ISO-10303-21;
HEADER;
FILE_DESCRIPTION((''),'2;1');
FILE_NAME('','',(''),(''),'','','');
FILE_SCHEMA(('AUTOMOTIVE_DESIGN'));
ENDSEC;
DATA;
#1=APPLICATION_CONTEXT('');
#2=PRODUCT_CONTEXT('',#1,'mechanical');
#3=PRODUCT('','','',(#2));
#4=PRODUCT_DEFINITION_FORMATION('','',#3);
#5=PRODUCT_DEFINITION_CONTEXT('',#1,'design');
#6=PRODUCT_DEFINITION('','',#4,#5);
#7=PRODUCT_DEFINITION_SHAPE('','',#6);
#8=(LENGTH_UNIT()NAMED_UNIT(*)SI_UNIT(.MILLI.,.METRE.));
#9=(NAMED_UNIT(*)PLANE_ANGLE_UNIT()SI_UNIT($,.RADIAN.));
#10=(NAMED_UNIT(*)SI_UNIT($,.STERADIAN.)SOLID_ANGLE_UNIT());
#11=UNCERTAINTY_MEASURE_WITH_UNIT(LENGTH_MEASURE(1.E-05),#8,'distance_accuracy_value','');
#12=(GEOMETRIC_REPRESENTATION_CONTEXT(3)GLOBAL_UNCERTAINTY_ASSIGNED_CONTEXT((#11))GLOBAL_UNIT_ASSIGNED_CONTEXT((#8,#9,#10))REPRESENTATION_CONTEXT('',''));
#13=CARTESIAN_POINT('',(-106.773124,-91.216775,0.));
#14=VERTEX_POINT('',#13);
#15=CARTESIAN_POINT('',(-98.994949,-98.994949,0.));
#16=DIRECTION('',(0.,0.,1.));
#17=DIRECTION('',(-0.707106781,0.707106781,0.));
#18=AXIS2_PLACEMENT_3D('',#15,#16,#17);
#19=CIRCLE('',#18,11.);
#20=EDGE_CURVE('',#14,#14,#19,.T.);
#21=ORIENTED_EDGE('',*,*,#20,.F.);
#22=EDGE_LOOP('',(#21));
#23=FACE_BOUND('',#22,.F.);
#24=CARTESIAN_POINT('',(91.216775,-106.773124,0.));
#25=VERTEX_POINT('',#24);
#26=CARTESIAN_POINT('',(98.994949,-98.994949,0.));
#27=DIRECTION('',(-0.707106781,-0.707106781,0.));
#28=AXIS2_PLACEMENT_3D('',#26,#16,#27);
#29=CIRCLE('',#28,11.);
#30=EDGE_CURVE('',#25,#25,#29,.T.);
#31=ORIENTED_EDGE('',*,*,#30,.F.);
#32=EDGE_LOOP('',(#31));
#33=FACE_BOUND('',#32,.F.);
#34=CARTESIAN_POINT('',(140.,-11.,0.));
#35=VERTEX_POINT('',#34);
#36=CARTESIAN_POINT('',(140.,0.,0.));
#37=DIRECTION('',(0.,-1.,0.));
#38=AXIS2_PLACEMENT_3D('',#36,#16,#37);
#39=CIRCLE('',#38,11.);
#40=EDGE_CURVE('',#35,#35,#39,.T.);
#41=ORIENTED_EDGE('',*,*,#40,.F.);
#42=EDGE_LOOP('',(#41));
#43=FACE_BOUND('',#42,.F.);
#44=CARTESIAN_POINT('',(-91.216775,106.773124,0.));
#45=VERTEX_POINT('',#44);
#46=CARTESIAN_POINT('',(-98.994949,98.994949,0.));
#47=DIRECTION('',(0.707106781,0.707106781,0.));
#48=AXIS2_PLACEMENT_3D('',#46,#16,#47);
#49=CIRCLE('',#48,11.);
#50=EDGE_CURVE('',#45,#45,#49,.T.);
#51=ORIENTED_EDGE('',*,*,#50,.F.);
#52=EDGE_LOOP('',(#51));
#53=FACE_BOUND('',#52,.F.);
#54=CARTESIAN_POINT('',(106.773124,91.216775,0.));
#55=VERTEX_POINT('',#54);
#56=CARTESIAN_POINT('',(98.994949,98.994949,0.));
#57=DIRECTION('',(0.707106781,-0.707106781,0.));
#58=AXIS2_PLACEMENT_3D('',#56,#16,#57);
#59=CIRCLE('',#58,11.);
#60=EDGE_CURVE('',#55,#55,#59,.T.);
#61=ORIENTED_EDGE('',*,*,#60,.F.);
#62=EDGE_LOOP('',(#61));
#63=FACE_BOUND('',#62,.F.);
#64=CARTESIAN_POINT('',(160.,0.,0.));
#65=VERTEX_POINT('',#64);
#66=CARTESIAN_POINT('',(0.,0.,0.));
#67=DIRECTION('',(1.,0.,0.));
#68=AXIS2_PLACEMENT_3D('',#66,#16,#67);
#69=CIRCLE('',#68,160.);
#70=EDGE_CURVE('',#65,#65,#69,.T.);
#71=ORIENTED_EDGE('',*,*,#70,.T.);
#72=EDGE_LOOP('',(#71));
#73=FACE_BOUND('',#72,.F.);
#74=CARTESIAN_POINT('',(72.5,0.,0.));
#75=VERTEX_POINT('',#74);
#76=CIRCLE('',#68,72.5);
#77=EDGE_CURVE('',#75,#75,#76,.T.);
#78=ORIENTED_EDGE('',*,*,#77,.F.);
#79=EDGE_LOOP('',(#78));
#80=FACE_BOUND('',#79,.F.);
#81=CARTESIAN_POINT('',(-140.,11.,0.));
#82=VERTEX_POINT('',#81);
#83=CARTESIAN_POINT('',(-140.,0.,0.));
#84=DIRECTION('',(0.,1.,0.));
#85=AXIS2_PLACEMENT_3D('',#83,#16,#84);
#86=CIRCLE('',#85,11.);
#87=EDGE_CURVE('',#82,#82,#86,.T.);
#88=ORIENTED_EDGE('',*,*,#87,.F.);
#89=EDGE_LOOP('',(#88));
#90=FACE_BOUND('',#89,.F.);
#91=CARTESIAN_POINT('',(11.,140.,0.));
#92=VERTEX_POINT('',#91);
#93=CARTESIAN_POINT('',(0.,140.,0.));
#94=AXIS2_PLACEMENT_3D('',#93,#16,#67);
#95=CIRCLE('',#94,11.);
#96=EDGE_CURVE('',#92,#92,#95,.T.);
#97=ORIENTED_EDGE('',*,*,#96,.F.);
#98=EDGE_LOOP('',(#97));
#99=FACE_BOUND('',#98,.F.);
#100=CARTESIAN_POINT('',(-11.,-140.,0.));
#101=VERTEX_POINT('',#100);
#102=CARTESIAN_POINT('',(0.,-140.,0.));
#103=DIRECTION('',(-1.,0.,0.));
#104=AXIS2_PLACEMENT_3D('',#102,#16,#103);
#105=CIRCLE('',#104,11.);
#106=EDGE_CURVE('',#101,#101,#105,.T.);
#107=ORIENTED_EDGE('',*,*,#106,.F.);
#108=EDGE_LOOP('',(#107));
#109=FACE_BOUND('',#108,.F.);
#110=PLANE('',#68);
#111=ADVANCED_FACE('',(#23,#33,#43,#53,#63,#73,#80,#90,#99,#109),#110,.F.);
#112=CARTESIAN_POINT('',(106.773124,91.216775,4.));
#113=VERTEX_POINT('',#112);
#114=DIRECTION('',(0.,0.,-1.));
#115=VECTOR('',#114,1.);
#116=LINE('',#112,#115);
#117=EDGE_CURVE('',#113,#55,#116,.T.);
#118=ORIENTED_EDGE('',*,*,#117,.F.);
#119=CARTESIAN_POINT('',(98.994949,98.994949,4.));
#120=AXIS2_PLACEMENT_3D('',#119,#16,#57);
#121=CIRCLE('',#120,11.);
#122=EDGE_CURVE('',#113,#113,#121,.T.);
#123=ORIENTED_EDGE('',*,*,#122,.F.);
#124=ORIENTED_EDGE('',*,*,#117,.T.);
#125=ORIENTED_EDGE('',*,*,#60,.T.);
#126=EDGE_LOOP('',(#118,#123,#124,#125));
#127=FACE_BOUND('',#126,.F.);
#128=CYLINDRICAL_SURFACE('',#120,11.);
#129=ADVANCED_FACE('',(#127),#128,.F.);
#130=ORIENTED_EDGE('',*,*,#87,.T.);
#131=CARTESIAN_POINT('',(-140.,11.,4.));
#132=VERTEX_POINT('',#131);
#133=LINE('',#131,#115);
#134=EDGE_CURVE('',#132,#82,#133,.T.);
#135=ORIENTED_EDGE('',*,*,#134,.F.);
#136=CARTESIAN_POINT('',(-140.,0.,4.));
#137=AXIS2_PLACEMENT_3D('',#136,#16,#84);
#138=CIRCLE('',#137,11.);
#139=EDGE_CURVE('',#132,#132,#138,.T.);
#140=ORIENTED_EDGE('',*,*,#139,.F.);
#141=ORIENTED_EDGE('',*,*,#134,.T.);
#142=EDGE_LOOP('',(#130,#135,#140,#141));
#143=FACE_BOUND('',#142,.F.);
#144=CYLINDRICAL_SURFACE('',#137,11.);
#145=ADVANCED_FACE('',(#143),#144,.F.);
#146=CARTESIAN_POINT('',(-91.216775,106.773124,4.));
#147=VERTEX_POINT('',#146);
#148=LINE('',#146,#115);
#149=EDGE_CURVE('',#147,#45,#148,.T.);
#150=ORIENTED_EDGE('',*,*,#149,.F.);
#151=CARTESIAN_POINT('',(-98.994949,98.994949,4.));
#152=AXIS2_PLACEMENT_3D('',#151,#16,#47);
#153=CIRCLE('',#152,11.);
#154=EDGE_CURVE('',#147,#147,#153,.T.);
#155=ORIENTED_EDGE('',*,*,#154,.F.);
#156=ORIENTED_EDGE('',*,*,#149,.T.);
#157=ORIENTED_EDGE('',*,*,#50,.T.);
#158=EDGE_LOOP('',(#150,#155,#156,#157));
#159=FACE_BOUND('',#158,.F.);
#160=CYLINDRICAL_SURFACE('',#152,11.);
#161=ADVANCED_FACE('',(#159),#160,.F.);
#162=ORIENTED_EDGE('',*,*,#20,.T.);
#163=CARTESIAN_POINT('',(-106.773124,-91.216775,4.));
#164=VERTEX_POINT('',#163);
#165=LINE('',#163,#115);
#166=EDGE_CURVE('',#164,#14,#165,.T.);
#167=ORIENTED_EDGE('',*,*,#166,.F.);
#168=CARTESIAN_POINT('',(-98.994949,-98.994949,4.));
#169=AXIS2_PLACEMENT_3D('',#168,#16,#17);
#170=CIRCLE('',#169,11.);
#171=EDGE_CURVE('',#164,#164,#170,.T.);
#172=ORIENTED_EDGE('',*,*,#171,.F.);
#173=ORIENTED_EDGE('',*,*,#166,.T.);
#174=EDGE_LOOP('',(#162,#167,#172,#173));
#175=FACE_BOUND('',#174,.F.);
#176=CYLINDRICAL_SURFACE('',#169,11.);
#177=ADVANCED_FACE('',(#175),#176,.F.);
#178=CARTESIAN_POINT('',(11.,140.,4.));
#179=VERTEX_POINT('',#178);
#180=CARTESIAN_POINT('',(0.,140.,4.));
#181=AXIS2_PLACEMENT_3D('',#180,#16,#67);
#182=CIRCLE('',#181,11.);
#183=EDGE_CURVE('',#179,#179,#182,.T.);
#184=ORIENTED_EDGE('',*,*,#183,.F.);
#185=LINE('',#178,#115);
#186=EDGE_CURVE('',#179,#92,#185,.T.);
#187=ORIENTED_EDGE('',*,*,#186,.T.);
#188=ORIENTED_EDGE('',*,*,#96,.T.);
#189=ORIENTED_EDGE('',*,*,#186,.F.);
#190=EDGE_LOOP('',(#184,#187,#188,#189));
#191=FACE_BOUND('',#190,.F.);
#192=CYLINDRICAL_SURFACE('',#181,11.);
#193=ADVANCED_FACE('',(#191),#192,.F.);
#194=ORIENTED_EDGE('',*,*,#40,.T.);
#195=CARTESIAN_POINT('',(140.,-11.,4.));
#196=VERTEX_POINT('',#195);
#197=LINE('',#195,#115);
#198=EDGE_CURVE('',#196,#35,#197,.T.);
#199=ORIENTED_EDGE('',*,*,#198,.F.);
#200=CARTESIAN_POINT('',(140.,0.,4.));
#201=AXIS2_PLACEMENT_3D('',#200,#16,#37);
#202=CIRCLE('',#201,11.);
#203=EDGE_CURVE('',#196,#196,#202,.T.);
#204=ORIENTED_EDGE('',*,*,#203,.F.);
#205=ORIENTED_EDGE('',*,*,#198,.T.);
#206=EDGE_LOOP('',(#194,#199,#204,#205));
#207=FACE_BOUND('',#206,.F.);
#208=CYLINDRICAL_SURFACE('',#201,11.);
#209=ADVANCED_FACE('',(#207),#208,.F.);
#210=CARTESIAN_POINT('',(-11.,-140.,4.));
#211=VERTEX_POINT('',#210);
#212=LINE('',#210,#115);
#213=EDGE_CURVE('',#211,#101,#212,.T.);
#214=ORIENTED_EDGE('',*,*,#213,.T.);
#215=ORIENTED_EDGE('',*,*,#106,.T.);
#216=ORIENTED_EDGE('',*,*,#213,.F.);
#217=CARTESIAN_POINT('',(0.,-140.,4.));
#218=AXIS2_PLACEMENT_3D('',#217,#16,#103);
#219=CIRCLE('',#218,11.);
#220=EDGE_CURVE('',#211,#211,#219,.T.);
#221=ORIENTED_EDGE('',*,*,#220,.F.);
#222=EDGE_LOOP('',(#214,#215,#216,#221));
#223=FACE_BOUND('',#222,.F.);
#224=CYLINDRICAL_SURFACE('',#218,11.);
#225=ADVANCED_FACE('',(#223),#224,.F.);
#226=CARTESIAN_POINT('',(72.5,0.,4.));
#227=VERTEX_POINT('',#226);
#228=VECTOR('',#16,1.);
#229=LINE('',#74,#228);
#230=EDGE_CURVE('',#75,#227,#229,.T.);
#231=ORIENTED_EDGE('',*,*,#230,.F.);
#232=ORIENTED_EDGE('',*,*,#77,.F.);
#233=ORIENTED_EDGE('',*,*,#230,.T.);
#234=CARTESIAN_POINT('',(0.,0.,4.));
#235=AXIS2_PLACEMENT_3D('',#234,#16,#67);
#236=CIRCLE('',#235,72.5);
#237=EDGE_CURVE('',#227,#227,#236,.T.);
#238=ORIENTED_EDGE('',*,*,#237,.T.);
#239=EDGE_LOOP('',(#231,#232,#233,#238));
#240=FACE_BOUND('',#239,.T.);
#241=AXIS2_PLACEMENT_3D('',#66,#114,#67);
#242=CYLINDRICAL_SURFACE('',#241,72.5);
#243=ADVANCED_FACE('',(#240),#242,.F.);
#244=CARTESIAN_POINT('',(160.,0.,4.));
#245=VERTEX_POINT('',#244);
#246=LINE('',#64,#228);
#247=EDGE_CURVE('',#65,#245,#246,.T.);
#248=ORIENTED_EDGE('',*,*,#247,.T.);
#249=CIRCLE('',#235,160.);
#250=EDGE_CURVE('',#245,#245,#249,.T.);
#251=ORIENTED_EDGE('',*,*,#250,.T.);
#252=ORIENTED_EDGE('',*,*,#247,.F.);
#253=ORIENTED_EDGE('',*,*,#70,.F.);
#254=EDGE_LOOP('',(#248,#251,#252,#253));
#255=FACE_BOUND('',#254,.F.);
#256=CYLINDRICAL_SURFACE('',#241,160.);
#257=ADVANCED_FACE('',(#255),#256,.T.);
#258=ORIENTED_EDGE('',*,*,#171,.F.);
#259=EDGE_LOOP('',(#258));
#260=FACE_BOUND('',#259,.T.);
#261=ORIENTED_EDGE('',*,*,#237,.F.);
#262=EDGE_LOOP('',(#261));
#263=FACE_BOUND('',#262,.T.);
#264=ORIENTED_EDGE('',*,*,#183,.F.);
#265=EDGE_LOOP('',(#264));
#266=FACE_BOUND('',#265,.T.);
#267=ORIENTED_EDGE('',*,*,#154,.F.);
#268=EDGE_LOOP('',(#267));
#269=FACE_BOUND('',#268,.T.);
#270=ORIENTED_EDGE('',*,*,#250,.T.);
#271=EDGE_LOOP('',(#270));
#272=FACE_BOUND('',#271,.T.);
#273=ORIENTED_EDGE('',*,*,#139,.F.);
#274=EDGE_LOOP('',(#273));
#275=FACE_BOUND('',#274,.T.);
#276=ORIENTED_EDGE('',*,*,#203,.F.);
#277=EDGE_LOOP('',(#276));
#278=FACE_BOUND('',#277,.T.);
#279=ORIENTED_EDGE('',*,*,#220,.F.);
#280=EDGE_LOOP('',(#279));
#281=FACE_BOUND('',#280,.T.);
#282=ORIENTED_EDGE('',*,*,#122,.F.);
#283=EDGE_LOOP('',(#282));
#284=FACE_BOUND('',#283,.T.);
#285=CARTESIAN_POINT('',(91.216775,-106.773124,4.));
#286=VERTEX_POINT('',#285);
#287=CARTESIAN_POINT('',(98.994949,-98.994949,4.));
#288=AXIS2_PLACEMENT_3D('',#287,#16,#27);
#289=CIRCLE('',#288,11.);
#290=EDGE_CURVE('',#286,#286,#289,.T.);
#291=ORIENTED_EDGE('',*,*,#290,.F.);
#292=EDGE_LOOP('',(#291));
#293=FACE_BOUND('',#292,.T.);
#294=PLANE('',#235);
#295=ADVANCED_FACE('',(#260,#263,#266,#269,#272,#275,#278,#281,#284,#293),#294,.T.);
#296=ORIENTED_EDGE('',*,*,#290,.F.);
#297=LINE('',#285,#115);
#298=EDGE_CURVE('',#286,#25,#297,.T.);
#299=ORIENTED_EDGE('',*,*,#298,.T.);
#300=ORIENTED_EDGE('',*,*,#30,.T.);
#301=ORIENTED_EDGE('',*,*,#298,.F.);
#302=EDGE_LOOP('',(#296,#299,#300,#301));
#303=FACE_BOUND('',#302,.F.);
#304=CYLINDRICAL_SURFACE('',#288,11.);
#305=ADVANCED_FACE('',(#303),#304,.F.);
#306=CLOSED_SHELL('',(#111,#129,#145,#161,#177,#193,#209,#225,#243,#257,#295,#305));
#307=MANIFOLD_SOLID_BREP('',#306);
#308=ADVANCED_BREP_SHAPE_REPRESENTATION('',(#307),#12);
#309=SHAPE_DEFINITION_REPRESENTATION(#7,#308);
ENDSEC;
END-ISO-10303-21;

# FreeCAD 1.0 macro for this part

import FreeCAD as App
import Part
import Sketcher

V = App.Vector
Q = App.Units.Quantity

doc = App.newDocument("Part")
body = doc.addObject("PartDesign::Body", "Body")

# Sketch on XY plane
sketch1 = body.newObject("Sketcher::SketchObject", "Sketch")
sketch1.AttachmentSupport = (doc.getObject("XY_Plane"), [""])
sketch1.MapMode = "FlatFace"
sketch1.addGeometry([
    Part.Circle(V(0, 0, 0), V(0, 0, 1), 160),
    Part.Circle(V(0, 0, 0), V(0, 0, 1), 72),
], False)
sketch1.addConstraint([
    Sketcher.Constraint("Coincident", 0, 3, -1, 1),
    Sketcher.Constraint("Coincident", 1, 3, -1, 1),
    Sketcher.Constraint("Diameter", 0, Q("320 mm")),
    Sketcher.Constraint("Diameter", 1, Q("145 mm")),
])
pad1 = body.newObject("PartDesign::Pad", "Pad")
pad1.Profile = sketch1
pad1.Length = 4

# Sketch on XY plane
sketch2 = body.newObject("Sketcher::SketchObject", "Sketch001")
sketch2.AttachmentSupport = (doc.getObject("XY_Plane"), [""])
sketch2.MapMode = "FlatFace"
sketch2.AttachmentOffset = App.Placement(V(0, 0, 4), App.Rotation())
sketch2.addGeometry(Part.Circle(V(0, 140, 0), V(0, 0, 1), 11), False)
sketch2.addConstraint([
    Sketcher.Constraint("PointOnObject", 0, 3, -2),
    Sketcher.Constraint("Diameter", 0, Q("22 mm")),
    Sketcher.Constraint("DistanceY", -1, 1, 0, 3, Q("140 mm")),
])
pocket1 = body.newObject("PartDesign::Pocket", "Pocket")
pocket1.Profile = sketch2
pocket1.Length = 4
doc.recompute()

polarpattern = body.newObject("PartDesign::PolarPattern", "PolarPattern")
polarpattern.Originals = [pocket1]
polarpattern.Axis = (doc.getObject("Z_Axis"), [""])
polarpattern.Angle = 360
polarpattern.Occurrences = 8
body.Tip = polarpattern

doc.recompute()
